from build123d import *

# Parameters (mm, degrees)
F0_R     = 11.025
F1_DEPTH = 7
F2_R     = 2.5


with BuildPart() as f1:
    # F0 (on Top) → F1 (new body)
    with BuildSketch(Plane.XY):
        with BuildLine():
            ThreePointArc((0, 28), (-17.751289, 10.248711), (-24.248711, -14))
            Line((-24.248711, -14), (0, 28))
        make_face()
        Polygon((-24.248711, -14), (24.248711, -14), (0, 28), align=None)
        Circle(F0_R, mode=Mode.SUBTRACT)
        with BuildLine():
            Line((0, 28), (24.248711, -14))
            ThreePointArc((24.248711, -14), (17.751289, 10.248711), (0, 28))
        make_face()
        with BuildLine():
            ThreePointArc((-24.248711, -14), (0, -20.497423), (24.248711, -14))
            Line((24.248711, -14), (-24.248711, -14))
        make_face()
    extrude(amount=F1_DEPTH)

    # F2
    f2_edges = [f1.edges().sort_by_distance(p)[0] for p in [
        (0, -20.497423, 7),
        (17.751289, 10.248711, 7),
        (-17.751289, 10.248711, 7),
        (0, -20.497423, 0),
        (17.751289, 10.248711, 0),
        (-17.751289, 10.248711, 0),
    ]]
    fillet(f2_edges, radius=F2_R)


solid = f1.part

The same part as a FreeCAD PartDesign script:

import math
import FreeCAD as App
import Part
import Sketcher

V = App.Vector


def edges_at(feature, points):
    """Names of the edges that pass closest to the given points."""
    edges = feature.Shape.Edges
    near = lambda p: min(range(len(edges)), key=lambda i: edges[i].distToShape(Part.Vertex(*p))[0])
    return sorted({f"Edge{near(p) + 1}" for p in points})

doc = App.newDocument("Part")
body = doc.addObject("PartDesign::Body", "Body")

# Sketch on XY plane
sketch1 = doc.addObject("Sketcher::SketchObject", "Sketch")
body.addObject(sketch1)
sketch1.AttachmentSupport = (doc.XY_Plane, [""])
sketch1.MapMode = "FlatFace"
sketch1.addGeometry([
    Part.ArcOfCircle(Part.Circle(V(24, -14, 0), V(0, 0, 1), 48), math.radians(120), math.radians(180)),
    Part.ArcOfCircle(Part.Circle(V(0, 28, 0), V(0, 0, 1), 48), math.radians(-120), math.radians(-60)),
    Part.ArcOfCircle(Part.Circle(V(-24, -14, 0), V(0, 0, 1), 48), math.radians(0), math.radians(60)),
    Part.Circle(V(0, 0, 0), V(0, 0, 1), 11),
], False)
sketch1.addConstraint([
    Sketcher.Constraint("Coincident", 0, 2, 1, 1),
    Sketcher.Constraint("Coincident", 1, 2, 2, 1),
    Sketcher.Constraint("Coincident", 2, 2, 0, 1),
    Sketcher.Constraint("Coincident", 3, 3, -1, 1),
    Sketcher.Constraint("Coincident", 0, 2, 2, 3),
    Sketcher.Constraint("Coincident", 1, 2, 0, 3),
    Sketcher.Constraint("Equal", 0, 1),
    Sketcher.Constraint("Symmetric", 0, 3, 2, 3, -2),
    Sketcher.Constraint("Diameter", 3, 22.05),
    Sketcher.Constraint("DistanceY", 0, 3, -1, 1, 13.999999),
    Sketcher.Constraint("DistanceY", -1, 1, 2, 2, 28.0),
])
pad1 = doc.addObject("PartDesign::Pad", "Pad")
body.addObject(pad1)
pad1.Profile = sketch1
pad1.Length = 7
doc.recompute()

fillet = doc.addObject("PartDesign::Fillet", "Fillet")
body.addObject(fillet)
fillet.Base = (pad1, edges_at(pad1, [
    (0, -20.497, 7),
    (17.751, 10.249, 7),
    (-17.751, 10.249, 7),
    (0, -20.497, 0),
    (17.751, 10.249, 0),
    (-17.751, 10.249, 0),
]))
fillet.Radius = 2.5

doc.recompute()
